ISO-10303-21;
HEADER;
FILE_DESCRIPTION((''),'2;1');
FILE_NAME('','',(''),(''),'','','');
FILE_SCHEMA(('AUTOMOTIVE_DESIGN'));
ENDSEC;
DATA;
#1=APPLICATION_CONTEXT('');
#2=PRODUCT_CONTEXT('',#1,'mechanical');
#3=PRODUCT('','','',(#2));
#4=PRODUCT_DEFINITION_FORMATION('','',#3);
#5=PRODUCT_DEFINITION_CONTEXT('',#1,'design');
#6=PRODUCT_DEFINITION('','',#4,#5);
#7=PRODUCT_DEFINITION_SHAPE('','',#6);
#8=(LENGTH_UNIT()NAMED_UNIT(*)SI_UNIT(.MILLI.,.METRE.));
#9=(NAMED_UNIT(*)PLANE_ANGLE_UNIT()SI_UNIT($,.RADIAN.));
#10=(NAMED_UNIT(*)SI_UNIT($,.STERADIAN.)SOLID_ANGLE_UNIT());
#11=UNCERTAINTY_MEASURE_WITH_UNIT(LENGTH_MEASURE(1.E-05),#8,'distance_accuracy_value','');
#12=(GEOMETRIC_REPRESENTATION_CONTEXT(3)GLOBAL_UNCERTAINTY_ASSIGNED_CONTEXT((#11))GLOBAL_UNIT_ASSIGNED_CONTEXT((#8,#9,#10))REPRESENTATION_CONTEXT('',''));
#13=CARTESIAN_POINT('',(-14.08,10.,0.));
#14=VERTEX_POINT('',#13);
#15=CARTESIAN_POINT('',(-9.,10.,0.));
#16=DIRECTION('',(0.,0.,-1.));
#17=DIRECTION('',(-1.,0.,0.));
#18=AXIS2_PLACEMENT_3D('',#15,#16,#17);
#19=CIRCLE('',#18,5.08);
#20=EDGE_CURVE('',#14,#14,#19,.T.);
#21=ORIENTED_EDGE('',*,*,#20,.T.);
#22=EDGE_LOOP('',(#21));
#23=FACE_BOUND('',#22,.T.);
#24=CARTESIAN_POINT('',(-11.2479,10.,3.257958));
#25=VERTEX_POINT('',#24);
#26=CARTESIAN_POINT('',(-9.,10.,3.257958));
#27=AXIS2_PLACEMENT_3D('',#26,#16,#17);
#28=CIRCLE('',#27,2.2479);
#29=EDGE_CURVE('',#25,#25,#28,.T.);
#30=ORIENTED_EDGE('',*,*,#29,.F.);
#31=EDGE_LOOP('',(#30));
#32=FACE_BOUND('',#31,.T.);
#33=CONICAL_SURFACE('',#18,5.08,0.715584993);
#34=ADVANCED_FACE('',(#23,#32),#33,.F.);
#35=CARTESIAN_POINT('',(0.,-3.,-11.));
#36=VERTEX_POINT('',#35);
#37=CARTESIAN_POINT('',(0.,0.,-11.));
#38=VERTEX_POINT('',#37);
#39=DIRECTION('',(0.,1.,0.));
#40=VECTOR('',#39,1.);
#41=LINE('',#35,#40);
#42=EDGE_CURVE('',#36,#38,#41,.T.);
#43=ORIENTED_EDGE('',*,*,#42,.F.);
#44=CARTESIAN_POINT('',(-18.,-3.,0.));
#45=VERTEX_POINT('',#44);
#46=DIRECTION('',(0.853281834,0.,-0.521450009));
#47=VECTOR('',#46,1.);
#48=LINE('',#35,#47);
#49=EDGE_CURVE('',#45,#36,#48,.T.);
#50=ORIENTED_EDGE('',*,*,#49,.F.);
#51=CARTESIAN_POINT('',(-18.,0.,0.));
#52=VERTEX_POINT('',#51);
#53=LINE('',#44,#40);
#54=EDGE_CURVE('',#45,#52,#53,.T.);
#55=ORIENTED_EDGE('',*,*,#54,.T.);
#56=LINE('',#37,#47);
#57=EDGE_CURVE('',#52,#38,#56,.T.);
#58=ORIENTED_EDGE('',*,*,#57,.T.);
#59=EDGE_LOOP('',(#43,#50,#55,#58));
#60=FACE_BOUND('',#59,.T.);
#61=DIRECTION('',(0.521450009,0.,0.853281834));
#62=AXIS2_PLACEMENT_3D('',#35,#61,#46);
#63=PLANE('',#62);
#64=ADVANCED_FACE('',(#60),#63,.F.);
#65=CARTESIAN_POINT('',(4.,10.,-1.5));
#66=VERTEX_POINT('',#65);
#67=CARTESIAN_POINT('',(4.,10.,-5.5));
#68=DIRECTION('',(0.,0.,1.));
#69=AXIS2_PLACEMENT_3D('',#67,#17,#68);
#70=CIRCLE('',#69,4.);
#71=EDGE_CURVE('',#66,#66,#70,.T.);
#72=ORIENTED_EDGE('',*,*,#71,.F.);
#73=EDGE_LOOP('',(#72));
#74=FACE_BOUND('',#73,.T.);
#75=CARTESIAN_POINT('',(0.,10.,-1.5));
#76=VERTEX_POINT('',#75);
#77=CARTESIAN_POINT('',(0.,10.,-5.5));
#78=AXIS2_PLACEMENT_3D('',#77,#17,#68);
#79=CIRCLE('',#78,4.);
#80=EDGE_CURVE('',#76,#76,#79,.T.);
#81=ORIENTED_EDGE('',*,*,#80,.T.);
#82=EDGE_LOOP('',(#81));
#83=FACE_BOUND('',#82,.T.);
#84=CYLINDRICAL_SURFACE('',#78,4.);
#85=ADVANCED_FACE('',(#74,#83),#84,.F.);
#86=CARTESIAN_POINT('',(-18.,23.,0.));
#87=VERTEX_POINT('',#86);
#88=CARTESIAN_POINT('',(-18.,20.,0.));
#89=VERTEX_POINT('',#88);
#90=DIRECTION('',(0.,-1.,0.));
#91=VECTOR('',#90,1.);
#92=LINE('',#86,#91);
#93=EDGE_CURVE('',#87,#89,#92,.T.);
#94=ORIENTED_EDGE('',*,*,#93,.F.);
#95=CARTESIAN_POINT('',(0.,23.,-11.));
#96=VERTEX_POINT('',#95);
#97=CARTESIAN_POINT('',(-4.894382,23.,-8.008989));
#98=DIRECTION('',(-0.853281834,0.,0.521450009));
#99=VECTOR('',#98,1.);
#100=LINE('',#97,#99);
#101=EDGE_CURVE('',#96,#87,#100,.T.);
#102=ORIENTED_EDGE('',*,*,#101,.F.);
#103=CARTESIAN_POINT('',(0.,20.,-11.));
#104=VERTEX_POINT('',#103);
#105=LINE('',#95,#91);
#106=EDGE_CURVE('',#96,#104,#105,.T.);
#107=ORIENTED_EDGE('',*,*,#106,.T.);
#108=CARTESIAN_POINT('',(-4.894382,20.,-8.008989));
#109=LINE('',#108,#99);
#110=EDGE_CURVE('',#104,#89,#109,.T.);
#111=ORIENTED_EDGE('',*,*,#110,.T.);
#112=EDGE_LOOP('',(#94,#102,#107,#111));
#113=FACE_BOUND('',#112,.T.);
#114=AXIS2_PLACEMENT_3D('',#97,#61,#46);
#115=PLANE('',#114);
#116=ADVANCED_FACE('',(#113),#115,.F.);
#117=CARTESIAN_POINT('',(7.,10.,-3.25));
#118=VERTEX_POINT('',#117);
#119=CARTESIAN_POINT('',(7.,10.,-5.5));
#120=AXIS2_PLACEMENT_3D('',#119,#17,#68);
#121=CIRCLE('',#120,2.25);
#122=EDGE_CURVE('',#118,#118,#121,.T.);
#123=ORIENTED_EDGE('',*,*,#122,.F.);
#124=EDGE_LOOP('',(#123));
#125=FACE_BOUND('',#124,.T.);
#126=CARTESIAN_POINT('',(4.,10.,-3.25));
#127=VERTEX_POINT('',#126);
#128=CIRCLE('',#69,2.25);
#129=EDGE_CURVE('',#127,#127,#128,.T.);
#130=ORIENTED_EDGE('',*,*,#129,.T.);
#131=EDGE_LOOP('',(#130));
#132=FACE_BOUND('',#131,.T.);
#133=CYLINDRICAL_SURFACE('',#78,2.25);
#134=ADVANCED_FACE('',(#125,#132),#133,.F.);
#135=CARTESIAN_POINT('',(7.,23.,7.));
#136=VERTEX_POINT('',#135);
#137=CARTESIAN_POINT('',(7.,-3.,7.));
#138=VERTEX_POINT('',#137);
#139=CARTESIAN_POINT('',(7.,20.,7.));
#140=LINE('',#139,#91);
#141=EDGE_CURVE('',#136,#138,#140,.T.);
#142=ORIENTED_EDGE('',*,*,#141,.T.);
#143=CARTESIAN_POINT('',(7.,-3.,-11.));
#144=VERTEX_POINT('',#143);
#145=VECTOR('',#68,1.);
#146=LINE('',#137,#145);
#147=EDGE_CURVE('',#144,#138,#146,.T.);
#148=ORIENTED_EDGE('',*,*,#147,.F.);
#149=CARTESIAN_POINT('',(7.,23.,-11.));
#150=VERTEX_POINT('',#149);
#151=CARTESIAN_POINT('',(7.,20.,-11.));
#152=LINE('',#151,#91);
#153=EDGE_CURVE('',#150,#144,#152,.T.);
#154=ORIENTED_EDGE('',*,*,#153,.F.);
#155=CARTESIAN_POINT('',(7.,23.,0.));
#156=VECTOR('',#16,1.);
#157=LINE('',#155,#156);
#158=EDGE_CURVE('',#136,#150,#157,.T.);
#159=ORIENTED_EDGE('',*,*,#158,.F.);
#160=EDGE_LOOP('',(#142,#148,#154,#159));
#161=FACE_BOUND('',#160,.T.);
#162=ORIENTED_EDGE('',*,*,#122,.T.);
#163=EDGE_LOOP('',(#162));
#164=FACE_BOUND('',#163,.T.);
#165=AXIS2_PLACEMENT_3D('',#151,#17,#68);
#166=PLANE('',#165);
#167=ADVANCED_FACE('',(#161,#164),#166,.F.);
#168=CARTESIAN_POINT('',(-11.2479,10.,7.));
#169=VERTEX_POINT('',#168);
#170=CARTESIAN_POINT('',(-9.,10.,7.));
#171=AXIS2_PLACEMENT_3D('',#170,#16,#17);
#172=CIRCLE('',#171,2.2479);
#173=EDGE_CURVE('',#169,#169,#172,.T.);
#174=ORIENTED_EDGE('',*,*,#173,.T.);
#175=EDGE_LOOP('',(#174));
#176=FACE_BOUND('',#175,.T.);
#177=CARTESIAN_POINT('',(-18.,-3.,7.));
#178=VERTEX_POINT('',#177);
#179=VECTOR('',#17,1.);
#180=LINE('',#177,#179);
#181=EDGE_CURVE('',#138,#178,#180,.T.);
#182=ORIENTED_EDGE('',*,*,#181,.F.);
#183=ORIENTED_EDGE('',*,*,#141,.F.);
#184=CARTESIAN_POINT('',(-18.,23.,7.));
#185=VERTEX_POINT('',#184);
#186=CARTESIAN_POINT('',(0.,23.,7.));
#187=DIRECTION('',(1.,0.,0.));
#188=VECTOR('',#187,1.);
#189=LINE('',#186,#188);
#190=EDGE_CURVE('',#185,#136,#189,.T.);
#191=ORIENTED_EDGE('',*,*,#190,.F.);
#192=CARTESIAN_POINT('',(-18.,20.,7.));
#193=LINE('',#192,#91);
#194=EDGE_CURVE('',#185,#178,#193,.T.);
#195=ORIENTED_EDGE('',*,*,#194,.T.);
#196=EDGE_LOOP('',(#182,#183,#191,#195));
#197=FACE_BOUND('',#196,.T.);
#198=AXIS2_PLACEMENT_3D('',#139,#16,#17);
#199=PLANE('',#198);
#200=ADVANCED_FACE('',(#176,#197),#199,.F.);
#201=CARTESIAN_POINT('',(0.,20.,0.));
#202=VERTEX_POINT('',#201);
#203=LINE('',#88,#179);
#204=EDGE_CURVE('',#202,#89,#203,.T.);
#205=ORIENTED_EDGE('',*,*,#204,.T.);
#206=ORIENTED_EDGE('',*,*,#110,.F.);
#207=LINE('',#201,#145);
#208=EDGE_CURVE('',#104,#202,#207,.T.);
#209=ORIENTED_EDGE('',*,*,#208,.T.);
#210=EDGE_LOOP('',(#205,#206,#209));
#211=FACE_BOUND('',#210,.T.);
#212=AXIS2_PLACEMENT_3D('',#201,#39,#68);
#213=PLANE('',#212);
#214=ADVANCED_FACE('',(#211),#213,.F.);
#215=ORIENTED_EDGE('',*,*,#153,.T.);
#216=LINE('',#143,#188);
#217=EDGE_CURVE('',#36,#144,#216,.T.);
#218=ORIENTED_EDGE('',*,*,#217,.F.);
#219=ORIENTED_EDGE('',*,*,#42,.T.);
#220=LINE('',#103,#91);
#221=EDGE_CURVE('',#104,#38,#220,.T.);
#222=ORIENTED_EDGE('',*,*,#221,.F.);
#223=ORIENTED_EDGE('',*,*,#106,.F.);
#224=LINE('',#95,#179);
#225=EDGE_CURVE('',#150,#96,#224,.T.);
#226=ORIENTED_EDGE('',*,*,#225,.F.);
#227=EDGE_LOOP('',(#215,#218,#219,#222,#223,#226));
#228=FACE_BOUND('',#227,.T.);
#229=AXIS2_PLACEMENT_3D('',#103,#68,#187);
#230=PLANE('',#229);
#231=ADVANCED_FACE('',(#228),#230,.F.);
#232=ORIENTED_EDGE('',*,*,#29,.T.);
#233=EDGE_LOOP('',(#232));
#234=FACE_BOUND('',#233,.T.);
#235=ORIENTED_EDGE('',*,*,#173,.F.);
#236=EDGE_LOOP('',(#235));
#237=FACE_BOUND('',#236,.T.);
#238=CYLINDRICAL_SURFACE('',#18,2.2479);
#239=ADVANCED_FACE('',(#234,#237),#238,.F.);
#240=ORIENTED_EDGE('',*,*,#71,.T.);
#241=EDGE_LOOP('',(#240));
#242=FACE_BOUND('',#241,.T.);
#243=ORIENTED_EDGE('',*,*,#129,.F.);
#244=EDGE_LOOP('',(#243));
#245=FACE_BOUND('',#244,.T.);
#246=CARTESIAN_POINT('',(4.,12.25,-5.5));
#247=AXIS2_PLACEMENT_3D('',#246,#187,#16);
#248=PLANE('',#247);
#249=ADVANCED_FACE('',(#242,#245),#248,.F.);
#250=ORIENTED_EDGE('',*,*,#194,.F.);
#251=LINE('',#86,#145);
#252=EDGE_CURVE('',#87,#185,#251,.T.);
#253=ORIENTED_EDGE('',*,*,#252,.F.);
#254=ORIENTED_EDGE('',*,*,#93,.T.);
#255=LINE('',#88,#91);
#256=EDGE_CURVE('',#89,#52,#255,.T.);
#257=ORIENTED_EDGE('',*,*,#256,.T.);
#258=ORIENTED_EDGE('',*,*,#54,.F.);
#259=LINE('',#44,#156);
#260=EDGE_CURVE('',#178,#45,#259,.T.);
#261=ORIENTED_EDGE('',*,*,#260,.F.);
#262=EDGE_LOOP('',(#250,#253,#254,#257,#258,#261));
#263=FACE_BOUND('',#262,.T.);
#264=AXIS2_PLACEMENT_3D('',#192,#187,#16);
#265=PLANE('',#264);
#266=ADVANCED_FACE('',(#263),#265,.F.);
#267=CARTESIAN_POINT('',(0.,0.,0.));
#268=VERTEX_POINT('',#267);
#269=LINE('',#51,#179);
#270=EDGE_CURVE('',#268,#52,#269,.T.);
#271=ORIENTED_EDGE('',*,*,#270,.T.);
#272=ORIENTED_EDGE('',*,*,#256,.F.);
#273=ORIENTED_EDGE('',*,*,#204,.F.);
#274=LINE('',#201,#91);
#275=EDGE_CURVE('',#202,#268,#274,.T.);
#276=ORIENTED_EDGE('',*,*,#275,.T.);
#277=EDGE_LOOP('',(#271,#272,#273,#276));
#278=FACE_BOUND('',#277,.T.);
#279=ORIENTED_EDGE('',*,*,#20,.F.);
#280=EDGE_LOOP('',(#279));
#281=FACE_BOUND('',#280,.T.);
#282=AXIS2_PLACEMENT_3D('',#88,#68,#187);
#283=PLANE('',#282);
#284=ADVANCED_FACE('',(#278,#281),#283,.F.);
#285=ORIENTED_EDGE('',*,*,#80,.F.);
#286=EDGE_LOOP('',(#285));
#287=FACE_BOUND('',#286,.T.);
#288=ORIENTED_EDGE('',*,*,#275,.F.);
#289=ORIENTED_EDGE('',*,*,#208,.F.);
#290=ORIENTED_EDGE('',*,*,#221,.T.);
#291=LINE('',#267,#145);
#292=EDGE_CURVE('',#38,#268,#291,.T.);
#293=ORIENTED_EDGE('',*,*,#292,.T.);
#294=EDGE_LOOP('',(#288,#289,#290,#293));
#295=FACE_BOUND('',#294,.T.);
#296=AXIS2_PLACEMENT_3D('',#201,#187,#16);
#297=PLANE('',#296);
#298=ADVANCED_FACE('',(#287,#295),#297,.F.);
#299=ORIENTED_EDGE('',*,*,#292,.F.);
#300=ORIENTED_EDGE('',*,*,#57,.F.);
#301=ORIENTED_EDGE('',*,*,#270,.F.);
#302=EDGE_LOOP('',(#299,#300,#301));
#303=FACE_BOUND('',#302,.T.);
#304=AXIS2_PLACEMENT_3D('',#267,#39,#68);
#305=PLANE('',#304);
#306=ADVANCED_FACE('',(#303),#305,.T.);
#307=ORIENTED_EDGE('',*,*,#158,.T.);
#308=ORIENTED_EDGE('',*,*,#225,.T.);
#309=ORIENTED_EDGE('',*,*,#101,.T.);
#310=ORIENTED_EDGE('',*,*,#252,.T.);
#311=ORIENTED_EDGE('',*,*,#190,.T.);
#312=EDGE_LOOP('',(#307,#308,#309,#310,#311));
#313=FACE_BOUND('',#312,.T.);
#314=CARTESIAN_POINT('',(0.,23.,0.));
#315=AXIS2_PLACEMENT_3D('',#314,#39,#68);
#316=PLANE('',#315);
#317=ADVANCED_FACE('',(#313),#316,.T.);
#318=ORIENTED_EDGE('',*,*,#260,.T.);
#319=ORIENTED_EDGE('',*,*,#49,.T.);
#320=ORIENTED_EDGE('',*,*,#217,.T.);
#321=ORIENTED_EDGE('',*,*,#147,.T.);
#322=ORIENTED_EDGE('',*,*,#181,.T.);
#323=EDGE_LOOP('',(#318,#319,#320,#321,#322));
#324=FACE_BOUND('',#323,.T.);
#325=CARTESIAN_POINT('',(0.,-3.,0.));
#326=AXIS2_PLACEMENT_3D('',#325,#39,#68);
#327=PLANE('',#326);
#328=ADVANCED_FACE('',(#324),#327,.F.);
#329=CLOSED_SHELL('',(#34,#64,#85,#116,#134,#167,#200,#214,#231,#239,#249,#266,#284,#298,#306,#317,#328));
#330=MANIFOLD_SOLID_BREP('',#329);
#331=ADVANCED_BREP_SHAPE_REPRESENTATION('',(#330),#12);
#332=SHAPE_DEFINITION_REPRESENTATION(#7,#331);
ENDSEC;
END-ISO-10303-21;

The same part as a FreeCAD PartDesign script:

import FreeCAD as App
import Part
import Sketcher

V = App.Vector
Q = App.Units.Quantity

doc = App.newDocument("Part")
params = doc.addObject("Spreadsheet::Sheet", "Params")
for row, (alias, value) in enumerate([
    ("sketch1_width", "18 mm"),
    ("sketch1_width2", "25 mm"),
    ("pad1_length", "20 mm"),
    ("sketch2_diameter", "4.5 mm"),
    ("hole_diameter", "4.5 mm"),
    ("hole_cbore_diameter", "8 mm"),
    ("hole_cbore_depth", "4 mm"),
    ("hole2_diameter", "4.4958 mm"),
    ("hole2_csink_diameter", "10.16 mm"),
    ("sketch4_width", "25 mm"),
    ("sketch4_width2", "7 mm"),
    ("sketch4_height", "18 mm"),
    ("pad2_length", "3 mm"),
    ("sketch5_width", "25 mm"),
    ("sketch5_width2", "7 mm"),
    ("sketch5_height", "18 mm"),
    ("pad3_length", "3 mm"),
], start=1):
    params.set(f"A{row}", alias)
    params.set(f"B{row}", "=" + value)
    params.setAlias(f"B{row}", alias)

body = doc.addObject("PartDesign::Body", "Body")

# Sketch on XZ plane
sketch1 = doc.addObject("Sketcher::SketchObject", "Sketch")
body.addObject(sketch1)
sketch1.AttachmentSupport = (doc.XZ_Plane, [""])
sketch1.MapMode = "FlatFace"
sketch1.addGeometry(Part.LineSegment(V(0, -11, 0), V(0, 0, 0)), False)
sketch1.addGeometry(Part.LineSegment(V(0, 0, 0), V(-18, 0, 0)), False)
sketch1.addGeometry(Part.LineSegment(V(-18, 0, 0), V(-18, 7, 0)), False)
sketch1.addGeometry(Part.LineSegment(V(-18, 7, 0), V(7, 7, 0)), False)
sketch1.addGeometry(Part.LineSegment(V(7, 7, 0), V(7, -11, 0)), False)
sketch1.addGeometry(Part.LineSegment(V(7, -11, 0), V(0, -11, 0)), False)
sketch1.addConstraint(Sketcher.Constraint("Coincident", 0, 2, 1, 1))
sketch1.addConstraint(Sketcher.Constraint("Coincident", 1, 2, 2, 1))
sketch1.addConstraint(Sketcher.Constraint("Coincident", 2, 2, 3, 1))
sketch1.addConstraint(Sketcher.Constraint("Coincident", 3, 2, 4, 1))
sketch1.addConstraint(Sketcher.Constraint("Coincident", 4, 2, 5, 1))
sketch1.addConstraint(Sketcher.Constraint("Coincident", 5, 2, 0, 1))
sketch1.addConstraint(Sketcher.Constraint("Vertical", 0))
sketch1.addConstraint(Sketcher.Constraint("Horizontal", 1))
sketch1.addConstraint(Sketcher.Constraint("Vertical", 2))
sketch1.addConstraint(Sketcher.Constraint("Horizontal", 3))
sketch1.addConstraint(Sketcher.Constraint("Vertical", 4))
sketch1.addConstraint(Sketcher.Constraint("Horizontal", 5))
sketch1.addConstraint(Sketcher.Constraint("Coincident", 0, 2, -1, 1))
sketch1.addConstraint(Sketcher.Constraint("Equal", 5, 2))
sketch1.addConstraint(Sketcher.Constraint("Equal", 1, 4))
sketch1.addConstraint(Sketcher.Constraint("DistanceX", 1, 2, 1, 1, Q("18 mm")))
sketch1.addConstraint(Sketcher.Constraint("DistanceX", 3, 1, 3, 2, Q("25 mm")))
sketch1.setExpression("Constraints[15]", "Params.sketch1_width")
sketch1.setExpression("Constraints[16]", "Params.sketch1_width2")
pad1 = doc.addObject("PartDesign::Pad", "Pad")
body.addObject(pad1)
pad1.Profile = sketch1
pad1.setExpression("Length", "Params.pad1_length")
pad1.Reversed = True

# Sketch on YZ plane
sketch2 = doc.addObject("Sketcher::SketchObject", "Sketch001")
body.addObject(sketch2)
sketch2.AttachmentSupport = (doc.YZ_Plane, [""])
sketch2.MapMode = "FlatFace"
sketch2.addGeometry(Part.Circle(V(10, -5.5, 0), V(0, 0, 1), 2.25), False)
sketch2.addConstraint(Sketcher.Constraint("Diameter", 0, Q("4.5 mm")))
sketch2.addConstraint(Sketcher.Constraint("DistanceX", -1, 1, 0, 3, Q("10 mm")))
sketch2.addConstraint(Sketcher.Constraint("DistanceY", 0, 3, -1, 1, Q("5.5 mm")))
sketch2.setExpression("Constraints[0]", "Params.sketch2_diameter")
doc.recompute()
hole = doc.addObject("PartDesign::Hole", "Hole")
body.addObject(hole)
hole.Profile = sketch2
hole.ThreadType = "None"
hole.setExpression("Diameter", "Params.hole_diameter")
hole.DepthType = "ThroughAll"
hole.HoleCutType = "Counterbore"
hole.setExpression("HoleCutDiameter", "Params.hole_cbore_diameter")
hole.setExpression("HoleCutDepth", "Params.hole_cbore_depth")
hole.Reversed = True

# Sketch on XY plane
sketch3 = doc.addObject("Sketcher::SketchObject", "Sketch002")
body.addObject(sketch3)
sketch3.AttachmentSupport = (doc.XY_Plane, [""])
sketch3.MapMode = "FlatFace"
sketch3.addGeometry(Part.Circle(V(-9, 10, 0), V(0, 0, 1), 2.2479), False)
sketch3.addConstraint(Sketcher.Constraint("DistanceX", 0, 3, -1, 1, Q("9 mm")))
sketch3.addConstraint(Sketcher.Constraint("DistanceY", -1, 1, 0, 3, Q("10 mm")))
sketch3.addConstraint(Sketcher.Constraint("Diameter", 0, Q("4.4958 mm")))
doc.recompute()
hole2 = doc.addObject("PartDesign::Hole", "Hole001")
body.addObject(hole2)
hole2.Profile = sketch3
hole2.ThreadType = "None"
hole2.setExpression("Diameter", "Params.hole2_diameter")
hole2.DepthType = "ThroughAll"
hole2.HoleCutType = "Countersink"
hole2.setExpression("HoleCutDiameter", "Params.hole2_csink_diameter")
hole2.HoleCutCountersinkAngle = 82
hole2.Reversed = True

# Sketch on XZ plane
sketch4 = doc.addObject("Sketcher::SketchObject", "Sketch003")
body.addObject(sketch4)
sketch4.AttachmentSupport = (doc.XZ_Plane, [""])
sketch4.MapMode = "FlatFace"
sketch4.addGeometry(Part.LineSegment(V(7, 7, 0), V(-18, 7, 0)), False)
sketch4.addGeometry(Part.LineSegment(V(-18, 7, 0), V(-18, 0, 0)), False)
sketch4.addGeometry(Part.LineSegment(V(-18, 0, 0), V(0, -11, 0)), False)
sketch4.addGeometry(Part.LineSegment(V(0, -11, 0), V(7, -11, 0)), False)
sketch4.addGeometry(Part.LineSegment(V(7, -11, 0), V(7, 7, 0)), False)
sketch4.addConstraint(Sketcher.Constraint("Coincident", 0, 2, 1, 1))
sketch4.addConstraint(Sketcher.Constraint("Coincident", 1, 2, 2, 1))
sketch4.addConstraint(Sketcher.Constraint("Coincident", 2, 2, 3, 1))
sketch4.addConstraint(Sketcher.Constraint("Coincident", 3, 2, 4, 1))
sketch4.addConstraint(Sketcher.Constraint("Coincident", 4, 2, 0, 1))
sketch4.addConstraint(Sketcher.Constraint("Horizontal", 0))
sketch4.addConstraint(Sketcher.Constraint("Vertical", 1))
sketch4.addConstraint(Sketcher.Constraint("Horizontal", 3))
sketch4.addConstraint(Sketcher.Constraint("Vertical", 4))
sketch4.addConstraint(Sketcher.Constraint("PointOnObject", 1, 2, -1))
sketch4.addConstraint(Sketcher.Constraint("PointOnObject", 2, 2, -2))
sketch4.addConstraint(Sketcher.Constraint("Equal", 3, 1))
sketch4.addConstraint(Sketcher.Constraint("DistanceX", 0, 2, 0, 1, Q("25 mm")))
sketch4.addConstraint(Sketcher.Constraint("DistanceX", 3, 1, 3, 2, Q("7 mm")))
sketch4.addConstraint(Sketcher.Constraint("DistanceY", 4, 1, 4, 2, Q("18 mm")))
sketch4.setExpression("Constraints[12]", "Params.sketch4_width")
sketch4.setExpression("Constraints[13]", "Params.sketch4_width2")
sketch4.setExpression("Constraints[14]", "Params.sketch4_height")
pad2 = doc.addObject("PartDesign::Pad", "Pad001")
body.addObject(pad2)
pad2.Profile = sketch4
pad2.setExpression("Length", "Params.pad2_length")

# Sketch on XZ plane
sketch5 = doc.addObject("Sketcher::SketchObject", "Sketch004")
body.addObject(sketch5)
sketch5.AttachmentSupport = (doc.XZ_Plane, [""])
sketch5.MapMode = "FlatFace"
sketch5.AttachmentOffset = App.Placement(V(0, 0, -20), App.Rotation())
sketch5.addGeometry(Part.LineSegment(V(7, 7, 0), V(-18, 7, 0)), False)
sketch5.addGeometry(Part.LineSegment(V(-18, 7, 0), V(-18, 0, 0)), False)
sketch5.addGeometry(Part.LineSegment(V(-18, 0, 0), V(0, -11, 0)), False)
sketch5.addGeometry(Part.LineSegment(V(0, -11, 0), V(7, -11, 0)), False)
sketch5.addGeometry(Part.LineSegment(V(7, -11, 0), V(7, 7, 0)), False)
sketch5.addConstraint(Sketcher.Constraint("Coincident", 0, 2, 1, 1))
sketch5.addConstraint(Sketcher.Constraint("Coincident", 1, 2, 2, 1))
sketch5.addConstraint(Sketcher.Constraint("Coincident", 2, 2, 3, 1))
sketch5.addConstraint(Sketcher.Constraint("Coincident", 3, 2, 4, 1))
sketch5.addConstraint(Sketcher.Constraint("Coincident", 4, 2, 0, 1))
sketch5.addConstraint(Sketcher.Constraint("Horizontal", 0))
sketch5.addConstraint(Sketcher.Constraint("Vertical", 1))
sketch5.addConstraint(Sketcher.Constraint("Horizontal", 3))
sketch5.addConstraint(Sketcher.Constraint("Vertical", 4))
sketch5.addConstraint(Sketcher.Constraint("PointOnObject", 1, 2, -1))
sketch5.addConstraint(Sketcher.Constraint("PointOnObject", 2, 2, -2))
sketch5.addConstraint(Sketcher.Constraint("Equal", 3, 1))
sketch5.addConstraint(Sketcher.Constraint("DistanceX", 0, 2, 0, 1, Q("25 mm")))
sketch5.addConstraint(Sketcher.Constraint("DistanceX", 3, 1, 3, 2, Q("7 mm")))
sketch5.addConstraint(Sketcher.Constraint("DistanceY", 4, 1, 4, 2, Q("18 mm")))
sketch5.setExpression("Constraints[12]", "Params.sketch5_width")
sketch5.setExpression("Constraints[13]", "Params.sketch5_width2")
sketch5.setExpression("Constraints[14]", "Params.sketch5_height")
pad3 = doc.addObject("PartDesign::Pad", "Pad002")
body.addObject(pad3)
pad3.Profile = sketch5
pad3.setExpression("Length", "Params.pad3_length")
pad3.Reversed = True

doc.recompute()
